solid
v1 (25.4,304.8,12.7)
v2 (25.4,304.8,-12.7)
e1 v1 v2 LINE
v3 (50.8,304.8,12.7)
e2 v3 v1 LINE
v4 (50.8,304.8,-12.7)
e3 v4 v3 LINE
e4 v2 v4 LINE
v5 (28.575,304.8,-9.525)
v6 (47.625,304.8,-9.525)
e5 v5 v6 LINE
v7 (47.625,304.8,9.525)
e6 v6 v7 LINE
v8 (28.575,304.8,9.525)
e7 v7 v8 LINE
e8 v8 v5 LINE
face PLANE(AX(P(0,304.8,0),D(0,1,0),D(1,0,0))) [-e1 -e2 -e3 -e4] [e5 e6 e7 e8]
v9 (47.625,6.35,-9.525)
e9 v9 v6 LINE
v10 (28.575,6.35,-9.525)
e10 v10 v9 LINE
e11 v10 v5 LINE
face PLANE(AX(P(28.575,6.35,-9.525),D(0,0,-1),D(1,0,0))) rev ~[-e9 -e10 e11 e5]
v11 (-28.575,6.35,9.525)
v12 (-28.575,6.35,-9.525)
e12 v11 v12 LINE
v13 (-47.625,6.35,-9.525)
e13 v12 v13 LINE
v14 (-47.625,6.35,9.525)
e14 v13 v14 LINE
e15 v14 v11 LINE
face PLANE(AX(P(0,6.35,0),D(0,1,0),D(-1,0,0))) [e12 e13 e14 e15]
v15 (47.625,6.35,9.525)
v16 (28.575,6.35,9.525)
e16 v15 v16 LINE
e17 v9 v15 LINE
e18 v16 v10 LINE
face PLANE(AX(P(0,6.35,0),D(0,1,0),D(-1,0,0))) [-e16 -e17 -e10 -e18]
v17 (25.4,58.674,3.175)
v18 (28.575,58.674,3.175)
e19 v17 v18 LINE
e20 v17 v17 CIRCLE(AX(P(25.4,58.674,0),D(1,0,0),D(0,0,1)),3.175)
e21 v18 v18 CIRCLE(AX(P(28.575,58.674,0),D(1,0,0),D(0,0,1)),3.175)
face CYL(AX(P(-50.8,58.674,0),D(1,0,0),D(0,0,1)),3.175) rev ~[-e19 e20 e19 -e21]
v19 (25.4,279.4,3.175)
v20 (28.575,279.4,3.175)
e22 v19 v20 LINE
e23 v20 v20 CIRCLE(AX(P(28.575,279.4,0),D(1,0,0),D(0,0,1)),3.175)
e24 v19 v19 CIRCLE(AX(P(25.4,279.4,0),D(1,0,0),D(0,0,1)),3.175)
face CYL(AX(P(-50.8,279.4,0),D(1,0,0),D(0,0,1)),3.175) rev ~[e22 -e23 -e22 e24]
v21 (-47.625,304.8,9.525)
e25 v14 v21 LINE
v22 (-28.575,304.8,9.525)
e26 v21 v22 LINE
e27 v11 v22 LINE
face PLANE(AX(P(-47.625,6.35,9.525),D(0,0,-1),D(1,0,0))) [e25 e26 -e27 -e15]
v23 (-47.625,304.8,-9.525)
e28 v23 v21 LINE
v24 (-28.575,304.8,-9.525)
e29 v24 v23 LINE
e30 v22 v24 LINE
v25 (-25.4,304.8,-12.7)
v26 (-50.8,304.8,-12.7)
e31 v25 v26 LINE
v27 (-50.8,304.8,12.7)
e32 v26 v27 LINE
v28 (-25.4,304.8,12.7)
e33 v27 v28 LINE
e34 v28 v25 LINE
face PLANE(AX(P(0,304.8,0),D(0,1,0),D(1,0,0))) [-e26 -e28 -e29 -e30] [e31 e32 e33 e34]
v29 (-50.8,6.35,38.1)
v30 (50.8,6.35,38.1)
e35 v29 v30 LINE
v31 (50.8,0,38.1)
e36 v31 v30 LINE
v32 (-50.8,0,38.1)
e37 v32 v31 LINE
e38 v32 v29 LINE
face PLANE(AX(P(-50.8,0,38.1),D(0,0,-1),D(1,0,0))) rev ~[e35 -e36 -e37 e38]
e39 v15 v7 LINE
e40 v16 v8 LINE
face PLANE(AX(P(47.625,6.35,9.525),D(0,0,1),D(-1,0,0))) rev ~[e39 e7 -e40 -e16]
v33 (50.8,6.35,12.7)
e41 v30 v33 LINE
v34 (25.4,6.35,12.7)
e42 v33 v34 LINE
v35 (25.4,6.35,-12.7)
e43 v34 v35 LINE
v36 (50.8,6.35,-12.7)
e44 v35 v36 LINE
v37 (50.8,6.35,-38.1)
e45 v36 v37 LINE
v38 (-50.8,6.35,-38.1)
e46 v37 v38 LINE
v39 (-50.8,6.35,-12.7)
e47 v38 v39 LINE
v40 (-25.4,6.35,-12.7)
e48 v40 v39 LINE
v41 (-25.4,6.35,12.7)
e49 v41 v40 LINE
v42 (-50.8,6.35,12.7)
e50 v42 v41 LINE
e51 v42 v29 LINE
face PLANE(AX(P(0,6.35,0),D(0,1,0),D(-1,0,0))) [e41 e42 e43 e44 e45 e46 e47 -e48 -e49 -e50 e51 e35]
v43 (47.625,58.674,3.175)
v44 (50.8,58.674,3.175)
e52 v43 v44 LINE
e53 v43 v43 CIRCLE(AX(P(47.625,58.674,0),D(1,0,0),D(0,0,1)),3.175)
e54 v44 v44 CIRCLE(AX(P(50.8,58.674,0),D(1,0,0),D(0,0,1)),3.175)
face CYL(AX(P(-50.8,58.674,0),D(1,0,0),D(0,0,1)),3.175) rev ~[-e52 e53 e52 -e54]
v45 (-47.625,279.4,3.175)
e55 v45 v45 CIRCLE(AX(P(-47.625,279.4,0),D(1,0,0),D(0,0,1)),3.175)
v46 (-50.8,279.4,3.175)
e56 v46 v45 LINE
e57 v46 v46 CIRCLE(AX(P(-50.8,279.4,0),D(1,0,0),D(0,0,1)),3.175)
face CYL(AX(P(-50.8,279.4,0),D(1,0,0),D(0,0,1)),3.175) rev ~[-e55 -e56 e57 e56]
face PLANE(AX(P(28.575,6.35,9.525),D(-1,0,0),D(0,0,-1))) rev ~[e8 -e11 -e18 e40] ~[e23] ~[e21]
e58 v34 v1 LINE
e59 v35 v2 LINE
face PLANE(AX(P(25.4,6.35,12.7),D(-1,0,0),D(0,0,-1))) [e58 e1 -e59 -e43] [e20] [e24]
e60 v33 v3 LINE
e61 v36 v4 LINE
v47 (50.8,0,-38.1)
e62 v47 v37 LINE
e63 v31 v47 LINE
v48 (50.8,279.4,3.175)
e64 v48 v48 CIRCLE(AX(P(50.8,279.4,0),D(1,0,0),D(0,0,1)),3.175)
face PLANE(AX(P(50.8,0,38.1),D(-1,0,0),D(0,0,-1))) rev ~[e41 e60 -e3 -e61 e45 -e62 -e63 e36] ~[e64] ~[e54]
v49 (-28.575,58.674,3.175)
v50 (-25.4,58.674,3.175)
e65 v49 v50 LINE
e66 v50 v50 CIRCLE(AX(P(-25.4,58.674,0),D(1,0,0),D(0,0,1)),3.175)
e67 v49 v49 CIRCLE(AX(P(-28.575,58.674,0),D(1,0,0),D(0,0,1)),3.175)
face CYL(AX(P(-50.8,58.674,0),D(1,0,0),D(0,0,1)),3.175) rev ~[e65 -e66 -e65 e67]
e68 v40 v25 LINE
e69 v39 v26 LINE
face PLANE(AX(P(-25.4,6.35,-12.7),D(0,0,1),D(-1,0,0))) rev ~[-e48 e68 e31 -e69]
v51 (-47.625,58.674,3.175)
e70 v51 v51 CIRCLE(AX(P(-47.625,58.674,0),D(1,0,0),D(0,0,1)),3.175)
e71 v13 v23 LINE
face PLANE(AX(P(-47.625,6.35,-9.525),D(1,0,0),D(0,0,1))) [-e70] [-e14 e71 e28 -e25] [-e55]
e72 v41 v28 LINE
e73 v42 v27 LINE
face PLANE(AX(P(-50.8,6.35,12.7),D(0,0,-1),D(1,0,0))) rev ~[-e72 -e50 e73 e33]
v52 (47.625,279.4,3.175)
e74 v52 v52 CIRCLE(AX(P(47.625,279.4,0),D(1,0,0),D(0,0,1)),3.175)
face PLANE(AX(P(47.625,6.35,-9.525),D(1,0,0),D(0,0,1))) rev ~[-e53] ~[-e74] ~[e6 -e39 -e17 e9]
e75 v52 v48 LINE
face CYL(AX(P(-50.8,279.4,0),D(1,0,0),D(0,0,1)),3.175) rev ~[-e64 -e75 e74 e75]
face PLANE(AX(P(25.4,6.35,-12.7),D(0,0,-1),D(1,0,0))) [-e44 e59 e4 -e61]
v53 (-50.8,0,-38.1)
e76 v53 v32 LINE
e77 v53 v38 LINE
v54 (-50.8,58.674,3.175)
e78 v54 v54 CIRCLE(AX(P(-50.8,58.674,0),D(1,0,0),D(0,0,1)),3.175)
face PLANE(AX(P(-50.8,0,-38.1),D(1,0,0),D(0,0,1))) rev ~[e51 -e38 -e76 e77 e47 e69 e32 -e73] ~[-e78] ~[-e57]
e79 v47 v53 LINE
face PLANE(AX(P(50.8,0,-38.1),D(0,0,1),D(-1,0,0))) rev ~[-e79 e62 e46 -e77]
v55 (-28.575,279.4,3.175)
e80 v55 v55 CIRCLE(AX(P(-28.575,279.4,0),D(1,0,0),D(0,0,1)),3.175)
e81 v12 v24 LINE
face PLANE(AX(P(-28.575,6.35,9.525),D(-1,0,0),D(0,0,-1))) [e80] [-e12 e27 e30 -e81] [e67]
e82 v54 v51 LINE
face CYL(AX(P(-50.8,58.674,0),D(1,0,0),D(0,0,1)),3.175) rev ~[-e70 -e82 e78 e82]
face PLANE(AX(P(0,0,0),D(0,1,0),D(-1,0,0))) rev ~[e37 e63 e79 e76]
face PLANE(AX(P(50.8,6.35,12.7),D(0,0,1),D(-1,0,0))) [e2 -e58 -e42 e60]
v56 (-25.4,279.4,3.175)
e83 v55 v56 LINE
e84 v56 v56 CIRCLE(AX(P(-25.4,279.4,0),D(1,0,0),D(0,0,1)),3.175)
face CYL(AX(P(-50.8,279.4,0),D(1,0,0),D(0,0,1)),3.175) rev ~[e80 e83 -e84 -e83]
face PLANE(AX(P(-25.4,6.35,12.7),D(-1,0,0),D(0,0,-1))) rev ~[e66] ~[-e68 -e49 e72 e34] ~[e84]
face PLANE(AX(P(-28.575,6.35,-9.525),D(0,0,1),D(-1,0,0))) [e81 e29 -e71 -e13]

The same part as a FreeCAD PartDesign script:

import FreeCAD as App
import Part
import Sketcher
Q = App.Units.Quantity


def add_polygon(sketch, points):
    """Adds a closed chain of lines whose ends are joined by coincident constraints."""
    first, n = sketch.GeometryCount, len(points)
    for a, b in zip(points, points[1:] + points[:1]):
        sketch.addGeometry(Part.LineSegment(App.Vector(*a, 0), App.Vector(*b, 0)), False)
    for i in range(n):
        sketch.addConstraint(Sketcher.Constraint("Coincident", first + i, 2, first + (i + 1) % n, 1))

doc = App.newDocument("Part")
body = doc.addObject("PartDesign::Body", "Body")

# Sketch on XZ plane
sketch1 = body.newObject("Sketcher::SketchObject", "Sketch")
sketch1.AttachmentSupport = (doc.getObject("XZ_Plane"), [""])
sketch1.MapMode = "FlatFace"
add_polygon(sketch1, [(-51, 38), (51, 38), (51, -38), (-51, -38)])  # lines 0-3
sketch1.addConstraint(Sketcher.Constraint("Horizontal", 0))
sketch1.addConstraint(Sketcher.Constraint("Vertical", 1))
sketch1.addConstraint(Sketcher.Constraint("Horizontal", 2))
sketch1.addConstraint(Sketcher.Constraint("Vertical", 3))
sketch1.addConstraint(Sketcher.Constraint("Symmetric", 0, 2, 2, 2, -1, 1))
sketch1.addConstraint(Sketcher.Constraint("DistanceX", 0, 1, 0, 2, Q("4 in")))
sketch1.addConstraint(Sketcher.Constraint("DistanceY", 1, 2, 1, 1, Q("3 in")))
pad1 = body.newObject("PartDesign::Pad", "Pad")
pad1.Profile = sketch1
pad1.Length = Q("0.25 in")
pad1.Reversed = True

# Sketch on XZ plane
sketch2 = body.newObject("Sketcher::SketchObject", "Sketch001")
sketch2.AttachmentSupport = (doc.getObject("XZ_Plane"), [""])
sketch2.MapMode = "FlatFace"
sketch2.AttachmentOffset = App.Placement(App.Vector(0, 0, -0.25 * 25.4), App.Rotation())
add_polygon(sketch2, [(-51, -13), (-51, 13), (-25, 13), (-25, -13)])  # lines 0-3
add_polygon(sketch2, [(-29, 10), (-48, 10), (-48, -10), (-29, -10)])  # lines 4-7
add_polygon(sketch2, [(25, 13), (51, 13), (51, -13), (25, -13)])  # lines 8-11
add_polygon(sketch2, [(48, -10), (48, 10), (29, 10), (29, -10)])  # lines 12-15
sketch2.addConstraint(Sketcher.Constraint("Vertical", 0))
sketch2.addConstraint(Sketcher.Constraint("Horizontal", 1))
sketch2.addConstraint(Sketcher.Constraint("Vertical", 2))
sketch2.addConstraint(Sketcher.Constraint("Horizontal", 3))
sketch2.addConstraint(Sketcher.Constraint("Horizontal", 4))
sketch2.addConstraint(Sketcher.Constraint("Vertical", 5))
sketch2.addConstraint(Sketcher.Constraint("Horizontal", 6))
sketch2.addConstraint(Sketcher.Constraint("Vertical", 7))
sketch2.addConstraint(Sketcher.Constraint("Horizontal", 8))
sketch2.addConstraint(Sketcher.Constraint("Vertical", 9))
sketch2.addConstraint(Sketcher.Constraint("Horizontal", 10))
sketch2.addConstraint(Sketcher.Constraint("Vertical", 11))
sketch2.addConstraint(Sketcher.Constraint("Vertical", 12))
sketch2.addConstraint(Sketcher.Constraint("Horizontal", 13))
sketch2.addConstraint(Sketcher.Constraint("Vertical", 14))
sketch2.addConstraint(Sketcher.Constraint("Horizontal", 15))
sketch2.addConstraint(Sketcher.Constraint("Symmetric", 3, 2, 8, 2, -1, 1))
sketch2.addConstraint(Sketcher.Constraint("Symmetric", 1, 2, 10, 2, -1, 1))
sketch2.addConstraint(Sketcher.Constraint("Symmetric", 5, 2, 12, 2, -1, 1))
sketch2.addConstraint(Sketcher.Constraint("Symmetric", 7, 2, 14, 2, -1, 1))
sketch2.addConstraint(Sketcher.Constraint("Horizontal", 1, 2, 8, 2))
sketch2.addConstraint(Sketcher.Constraint("Horizontal", 7, 2, 12, 2))
sketch2.addConstraint(Sketcher.Constraint("Equal", 10, 0))
sketch2.addConstraint(Sketcher.Constraint("Equal", 15, 5))
sketch2.addConstraint(Sketcher.Constraint("DistanceX", 1, 1, 1, 2, Q("1 in")))
sketch2.addConstraint(Sketcher.Constraint("DistanceX", 1, 2, -1, 1, Q("1 in")))
sketch2.addConstraint(Sketcher.Constraint("DistanceX", 0, 2, 4, 2, Q("0.125 in")))
sketch2.addConstraint(Sketcher.Constraint("DistanceY", 4, 2, 0, 2, Q("0.125 in")))
pad2 = body.newObject("PartDesign::Pad", "Pad001")
pad2.Profile = sketch2
pad2.Length = Q("11.75 in")
pad2.Reversed = True

# Sketch on YZ plane
sketch3 = body.newObject("Sketcher::SketchObject", "Sketch002")
sketch3.AttachmentSupport = (doc.getObject("YZ_Plane"), [""])
sketch3.MapMode = "FlatFace"
sketch3.AttachmentOffset = App.Placement(App.Vector(0, 0, -2 * 25.4), App.Rotation())
sketch3.addGeometry(Part.Circle(App.Vector(279.4, 0, 0), App.Vector(0, 0, 1), 3.2), False)
sketch3.addGeometry(Part.Circle(App.Vector(58.7, 0, 0), App.Vector(0, 0, 1), 3.2), False)
sketch3.addConstraint(Sketcher.Constraint("Equal", 0, 1))
sketch3.addConstraint(Sketcher.Constraint("PointOnObject", 0, 3, -1))
sketch3.addConstraint(Sketcher.Constraint("PointOnObject", 1, 3, -1))
sketch3.addConstraint(Sketcher.Constraint("Diameter", 0, Q("0.25 in")))
sketch3.addConstraint(Sketcher.Constraint("DistanceX", -1, 1, 0, 3, Q("11 in")))
sketch3.addConstraint(Sketcher.Constraint("DistanceX", -1, 1, 1, 3, Q("2.31 in")))
doc.recompute()
hole = body.newObject("PartDesign::Hole", "Hole")
hole.Profile = sketch3
hole.ThreadType = "None"
hole.Diameter = Q("0.25 in")
hole.DepthType = "ThroughAll"
hole.Reversed = True

doc.recompute()
